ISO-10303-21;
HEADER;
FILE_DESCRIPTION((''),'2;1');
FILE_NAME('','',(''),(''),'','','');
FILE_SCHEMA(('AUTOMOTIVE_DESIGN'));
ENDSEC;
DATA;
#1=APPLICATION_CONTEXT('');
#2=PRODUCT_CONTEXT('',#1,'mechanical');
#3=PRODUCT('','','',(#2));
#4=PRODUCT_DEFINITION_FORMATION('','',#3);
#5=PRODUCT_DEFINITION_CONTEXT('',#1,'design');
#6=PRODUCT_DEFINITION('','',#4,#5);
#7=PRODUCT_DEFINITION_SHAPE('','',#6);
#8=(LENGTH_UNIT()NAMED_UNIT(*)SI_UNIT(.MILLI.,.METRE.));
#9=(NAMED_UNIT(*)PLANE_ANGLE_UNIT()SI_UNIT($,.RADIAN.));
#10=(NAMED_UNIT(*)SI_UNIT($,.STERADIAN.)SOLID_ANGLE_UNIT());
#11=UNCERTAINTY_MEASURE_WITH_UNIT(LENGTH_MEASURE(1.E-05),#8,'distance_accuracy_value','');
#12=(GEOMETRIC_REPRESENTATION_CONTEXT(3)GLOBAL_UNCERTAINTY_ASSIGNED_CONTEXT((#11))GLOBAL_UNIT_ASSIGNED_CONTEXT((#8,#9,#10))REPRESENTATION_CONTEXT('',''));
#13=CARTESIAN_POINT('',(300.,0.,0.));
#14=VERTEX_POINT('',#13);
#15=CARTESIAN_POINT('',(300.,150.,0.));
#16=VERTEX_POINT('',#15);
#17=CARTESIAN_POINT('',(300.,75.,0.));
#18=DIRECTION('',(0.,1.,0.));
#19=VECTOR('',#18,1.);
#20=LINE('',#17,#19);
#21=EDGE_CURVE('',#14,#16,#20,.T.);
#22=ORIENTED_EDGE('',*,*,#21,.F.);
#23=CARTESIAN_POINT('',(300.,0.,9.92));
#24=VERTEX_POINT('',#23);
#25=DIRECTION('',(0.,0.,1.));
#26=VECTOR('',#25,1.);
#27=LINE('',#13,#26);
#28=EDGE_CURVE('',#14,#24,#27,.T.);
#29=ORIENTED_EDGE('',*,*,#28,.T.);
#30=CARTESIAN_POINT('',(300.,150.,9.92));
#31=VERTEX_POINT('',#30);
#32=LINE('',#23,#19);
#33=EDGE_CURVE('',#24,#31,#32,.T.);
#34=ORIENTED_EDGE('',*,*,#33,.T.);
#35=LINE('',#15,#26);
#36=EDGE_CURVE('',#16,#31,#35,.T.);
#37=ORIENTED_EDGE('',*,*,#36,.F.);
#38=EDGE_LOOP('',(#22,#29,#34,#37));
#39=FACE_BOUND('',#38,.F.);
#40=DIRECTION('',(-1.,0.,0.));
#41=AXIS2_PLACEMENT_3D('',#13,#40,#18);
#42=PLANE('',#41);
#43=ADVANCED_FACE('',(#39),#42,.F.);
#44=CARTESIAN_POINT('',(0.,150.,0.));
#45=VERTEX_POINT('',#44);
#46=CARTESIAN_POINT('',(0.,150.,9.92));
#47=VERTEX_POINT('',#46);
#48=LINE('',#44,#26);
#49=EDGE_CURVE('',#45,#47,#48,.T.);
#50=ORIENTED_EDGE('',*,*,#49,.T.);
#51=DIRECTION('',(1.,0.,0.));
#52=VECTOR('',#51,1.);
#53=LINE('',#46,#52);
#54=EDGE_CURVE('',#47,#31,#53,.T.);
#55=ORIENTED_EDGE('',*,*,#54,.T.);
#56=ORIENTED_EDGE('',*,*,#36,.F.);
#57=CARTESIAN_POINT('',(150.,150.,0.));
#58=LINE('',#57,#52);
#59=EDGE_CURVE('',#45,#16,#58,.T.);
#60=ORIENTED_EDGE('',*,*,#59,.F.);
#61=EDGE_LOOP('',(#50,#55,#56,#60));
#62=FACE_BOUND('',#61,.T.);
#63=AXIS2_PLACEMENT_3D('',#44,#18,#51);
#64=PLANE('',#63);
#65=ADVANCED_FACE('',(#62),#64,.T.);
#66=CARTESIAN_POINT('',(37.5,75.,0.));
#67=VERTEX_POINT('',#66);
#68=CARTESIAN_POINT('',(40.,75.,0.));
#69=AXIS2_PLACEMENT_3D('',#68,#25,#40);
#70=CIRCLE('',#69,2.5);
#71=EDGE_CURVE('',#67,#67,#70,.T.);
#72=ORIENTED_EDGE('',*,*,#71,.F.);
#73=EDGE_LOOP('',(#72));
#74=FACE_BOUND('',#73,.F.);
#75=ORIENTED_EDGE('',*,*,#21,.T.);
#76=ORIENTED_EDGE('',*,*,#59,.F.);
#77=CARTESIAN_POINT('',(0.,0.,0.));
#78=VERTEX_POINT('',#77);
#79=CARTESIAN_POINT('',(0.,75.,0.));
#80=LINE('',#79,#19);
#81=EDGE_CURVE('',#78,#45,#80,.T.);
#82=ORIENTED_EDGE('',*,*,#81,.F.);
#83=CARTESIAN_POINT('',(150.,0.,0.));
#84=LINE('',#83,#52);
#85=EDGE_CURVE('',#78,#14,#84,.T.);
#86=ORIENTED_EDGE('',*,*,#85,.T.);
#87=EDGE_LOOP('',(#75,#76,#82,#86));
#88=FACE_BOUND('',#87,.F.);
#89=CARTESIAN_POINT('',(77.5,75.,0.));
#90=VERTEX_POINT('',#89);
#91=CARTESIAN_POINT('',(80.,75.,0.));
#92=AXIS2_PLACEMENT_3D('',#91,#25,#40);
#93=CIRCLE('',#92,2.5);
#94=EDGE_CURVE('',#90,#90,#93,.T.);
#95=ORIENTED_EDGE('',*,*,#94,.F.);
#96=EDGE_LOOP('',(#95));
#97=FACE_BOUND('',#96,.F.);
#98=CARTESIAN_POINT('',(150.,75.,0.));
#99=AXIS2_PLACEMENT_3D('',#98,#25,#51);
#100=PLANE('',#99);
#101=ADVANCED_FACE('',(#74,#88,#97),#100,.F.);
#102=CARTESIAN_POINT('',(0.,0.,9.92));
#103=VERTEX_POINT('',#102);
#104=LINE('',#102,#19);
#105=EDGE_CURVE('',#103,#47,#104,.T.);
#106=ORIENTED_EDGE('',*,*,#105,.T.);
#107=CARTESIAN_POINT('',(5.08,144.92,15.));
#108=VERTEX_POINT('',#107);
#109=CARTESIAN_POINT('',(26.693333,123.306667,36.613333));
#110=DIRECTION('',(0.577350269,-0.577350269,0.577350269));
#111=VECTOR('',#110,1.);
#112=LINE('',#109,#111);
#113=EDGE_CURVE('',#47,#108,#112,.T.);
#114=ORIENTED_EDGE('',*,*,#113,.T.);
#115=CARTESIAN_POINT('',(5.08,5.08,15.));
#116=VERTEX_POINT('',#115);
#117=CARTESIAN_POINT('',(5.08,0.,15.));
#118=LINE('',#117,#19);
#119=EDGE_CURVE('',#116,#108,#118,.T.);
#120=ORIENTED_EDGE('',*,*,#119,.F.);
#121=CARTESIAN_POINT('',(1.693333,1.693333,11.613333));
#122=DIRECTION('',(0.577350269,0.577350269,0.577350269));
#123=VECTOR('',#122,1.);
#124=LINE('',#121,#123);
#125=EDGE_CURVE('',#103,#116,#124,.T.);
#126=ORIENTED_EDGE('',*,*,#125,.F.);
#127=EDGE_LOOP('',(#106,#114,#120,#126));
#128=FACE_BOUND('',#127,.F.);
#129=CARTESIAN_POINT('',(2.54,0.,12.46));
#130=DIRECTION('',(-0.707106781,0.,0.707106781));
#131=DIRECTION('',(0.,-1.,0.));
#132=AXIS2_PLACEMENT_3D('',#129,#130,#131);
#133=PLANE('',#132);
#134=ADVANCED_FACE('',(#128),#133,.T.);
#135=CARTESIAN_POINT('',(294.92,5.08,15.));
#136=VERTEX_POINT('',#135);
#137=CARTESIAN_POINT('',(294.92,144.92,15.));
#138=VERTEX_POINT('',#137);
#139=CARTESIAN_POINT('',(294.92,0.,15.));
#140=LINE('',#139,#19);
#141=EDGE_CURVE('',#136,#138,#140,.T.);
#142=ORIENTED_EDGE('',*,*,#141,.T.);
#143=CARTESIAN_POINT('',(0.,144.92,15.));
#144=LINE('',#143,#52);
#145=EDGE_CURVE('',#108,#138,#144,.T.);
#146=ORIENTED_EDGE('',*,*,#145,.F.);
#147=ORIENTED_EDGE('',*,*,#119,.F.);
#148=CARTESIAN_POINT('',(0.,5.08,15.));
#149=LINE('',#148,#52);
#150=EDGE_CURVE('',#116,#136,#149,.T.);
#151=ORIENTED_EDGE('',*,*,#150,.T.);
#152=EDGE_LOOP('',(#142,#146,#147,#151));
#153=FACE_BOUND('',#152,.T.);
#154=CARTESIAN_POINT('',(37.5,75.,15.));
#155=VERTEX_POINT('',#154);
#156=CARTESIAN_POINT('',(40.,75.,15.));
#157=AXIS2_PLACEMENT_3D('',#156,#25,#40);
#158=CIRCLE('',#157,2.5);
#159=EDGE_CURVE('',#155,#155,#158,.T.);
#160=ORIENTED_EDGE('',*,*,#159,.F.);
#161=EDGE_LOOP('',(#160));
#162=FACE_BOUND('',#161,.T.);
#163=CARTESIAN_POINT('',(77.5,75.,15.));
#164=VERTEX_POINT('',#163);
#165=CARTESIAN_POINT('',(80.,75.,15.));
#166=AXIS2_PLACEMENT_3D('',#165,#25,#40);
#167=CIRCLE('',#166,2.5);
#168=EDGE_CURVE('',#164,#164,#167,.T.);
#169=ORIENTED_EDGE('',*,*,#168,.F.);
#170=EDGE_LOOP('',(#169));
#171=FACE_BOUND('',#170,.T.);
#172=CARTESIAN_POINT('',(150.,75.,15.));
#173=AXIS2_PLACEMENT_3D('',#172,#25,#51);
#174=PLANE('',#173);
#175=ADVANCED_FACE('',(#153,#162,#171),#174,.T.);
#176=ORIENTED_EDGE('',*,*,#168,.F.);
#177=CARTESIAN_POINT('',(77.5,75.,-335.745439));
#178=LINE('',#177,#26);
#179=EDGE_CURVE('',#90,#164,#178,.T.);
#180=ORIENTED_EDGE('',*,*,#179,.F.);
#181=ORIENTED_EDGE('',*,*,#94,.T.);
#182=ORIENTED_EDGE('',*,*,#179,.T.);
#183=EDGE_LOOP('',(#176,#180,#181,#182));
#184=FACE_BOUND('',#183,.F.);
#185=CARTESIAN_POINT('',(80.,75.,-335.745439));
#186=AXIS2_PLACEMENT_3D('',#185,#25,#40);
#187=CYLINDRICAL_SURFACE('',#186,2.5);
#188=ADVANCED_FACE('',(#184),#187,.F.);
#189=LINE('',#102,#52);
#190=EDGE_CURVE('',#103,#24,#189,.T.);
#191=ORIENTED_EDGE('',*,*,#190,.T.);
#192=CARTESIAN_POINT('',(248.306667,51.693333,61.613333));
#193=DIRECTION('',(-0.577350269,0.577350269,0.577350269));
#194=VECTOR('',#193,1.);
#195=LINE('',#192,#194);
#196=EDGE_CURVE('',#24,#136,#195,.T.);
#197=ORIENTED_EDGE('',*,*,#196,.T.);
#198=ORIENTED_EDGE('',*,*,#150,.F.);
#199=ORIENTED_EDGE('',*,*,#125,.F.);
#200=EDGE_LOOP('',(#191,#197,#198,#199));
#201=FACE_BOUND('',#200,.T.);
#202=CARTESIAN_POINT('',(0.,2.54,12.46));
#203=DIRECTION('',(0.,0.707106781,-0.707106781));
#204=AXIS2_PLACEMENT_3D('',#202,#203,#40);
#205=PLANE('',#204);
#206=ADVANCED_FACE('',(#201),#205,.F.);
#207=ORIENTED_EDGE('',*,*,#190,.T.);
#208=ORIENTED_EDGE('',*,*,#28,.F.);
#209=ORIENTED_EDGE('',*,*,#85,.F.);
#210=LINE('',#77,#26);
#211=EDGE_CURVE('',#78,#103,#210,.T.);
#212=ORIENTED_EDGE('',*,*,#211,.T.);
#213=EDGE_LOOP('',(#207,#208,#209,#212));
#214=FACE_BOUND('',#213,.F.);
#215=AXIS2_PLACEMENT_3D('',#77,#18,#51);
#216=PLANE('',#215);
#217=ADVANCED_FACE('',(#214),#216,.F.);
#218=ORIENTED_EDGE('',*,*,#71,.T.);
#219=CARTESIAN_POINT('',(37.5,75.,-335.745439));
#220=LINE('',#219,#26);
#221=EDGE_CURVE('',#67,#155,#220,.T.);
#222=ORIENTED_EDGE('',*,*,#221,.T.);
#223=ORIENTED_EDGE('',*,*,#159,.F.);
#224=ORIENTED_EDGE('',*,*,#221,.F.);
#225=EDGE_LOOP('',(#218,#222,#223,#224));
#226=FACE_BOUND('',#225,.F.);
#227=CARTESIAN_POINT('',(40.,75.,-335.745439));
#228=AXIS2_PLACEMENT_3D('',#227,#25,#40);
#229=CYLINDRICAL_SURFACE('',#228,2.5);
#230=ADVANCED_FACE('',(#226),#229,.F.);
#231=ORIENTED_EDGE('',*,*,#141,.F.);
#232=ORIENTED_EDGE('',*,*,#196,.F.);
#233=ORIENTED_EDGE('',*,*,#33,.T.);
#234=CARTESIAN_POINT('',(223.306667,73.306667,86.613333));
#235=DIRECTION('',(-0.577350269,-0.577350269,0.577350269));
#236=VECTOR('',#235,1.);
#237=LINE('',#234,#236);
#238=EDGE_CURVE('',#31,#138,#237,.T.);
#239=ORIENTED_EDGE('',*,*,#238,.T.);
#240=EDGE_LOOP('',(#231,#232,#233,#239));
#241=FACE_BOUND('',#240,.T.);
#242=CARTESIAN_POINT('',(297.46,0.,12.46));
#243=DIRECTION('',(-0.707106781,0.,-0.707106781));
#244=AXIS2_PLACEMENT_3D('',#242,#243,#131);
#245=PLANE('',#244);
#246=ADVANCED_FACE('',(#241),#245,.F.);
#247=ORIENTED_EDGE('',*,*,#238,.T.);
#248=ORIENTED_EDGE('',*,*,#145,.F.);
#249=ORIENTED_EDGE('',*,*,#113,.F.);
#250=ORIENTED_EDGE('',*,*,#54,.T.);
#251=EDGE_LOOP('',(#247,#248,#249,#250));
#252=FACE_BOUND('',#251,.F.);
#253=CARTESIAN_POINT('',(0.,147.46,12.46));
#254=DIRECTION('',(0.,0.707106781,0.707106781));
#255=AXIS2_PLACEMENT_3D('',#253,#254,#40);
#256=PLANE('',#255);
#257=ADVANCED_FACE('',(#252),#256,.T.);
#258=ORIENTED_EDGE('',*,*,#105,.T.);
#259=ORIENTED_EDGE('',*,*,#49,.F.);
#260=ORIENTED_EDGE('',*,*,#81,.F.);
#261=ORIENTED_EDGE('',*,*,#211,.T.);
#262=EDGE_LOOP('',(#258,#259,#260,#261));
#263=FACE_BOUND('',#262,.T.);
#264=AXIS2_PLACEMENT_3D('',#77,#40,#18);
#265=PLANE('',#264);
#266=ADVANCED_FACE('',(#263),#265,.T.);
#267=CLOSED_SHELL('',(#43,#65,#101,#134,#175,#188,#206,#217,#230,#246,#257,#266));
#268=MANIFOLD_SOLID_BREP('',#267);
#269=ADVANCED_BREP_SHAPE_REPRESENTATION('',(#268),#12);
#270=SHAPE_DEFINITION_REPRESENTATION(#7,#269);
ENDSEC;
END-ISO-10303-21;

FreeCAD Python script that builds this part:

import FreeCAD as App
import Part
import Sketcher

V = App.Vector
Q = App.Units.Quantity


def edges_at(feature, points):
    """Names of the edges that pass closest to the given points."""
    edges = feature.Shape.Edges
    near = lambda p: min(range(len(edges)), key=lambda i: edges[i].distToShape(Part.Vertex(*p))[0])
    return sorted({f"Edge{near(p) + 1}" for p in points})

doc = App.newDocument("Part")
params = doc.addObject("Spreadsheet::Sheet", "Params")
for row, (alias, value) in enumerate([
    ("sketch1_width", "300 mm"),
    ("sketch1_height", "150 mm"),
    ("pad1_length", "15 mm"),
    ("chamfer_size", "5.08 mm"),
    ("sketch2_diameter", "5 mm"),
    ("hole_diameter", "5 mm"),
], start=1):
    params.set(f"A{row}", alias)
    params.set(f"B{row}", "=" + value)
    params.setAlias(f"B{row}", alias)

body = doc.addObject("PartDesign::Body", "Body")

# Sketch on XY plane
sketch1 = doc.addObject("Sketcher::SketchObject", "Sketch")
body.addObject(sketch1)
sketch1.AttachmentSupport = (doc.XY_Plane, [""])
sketch1.MapMode = "FlatFace"
sketch1.addGeometry([
    Part.LineSegment(V(0, 150, 0), V(0, 0, 0)),
    Part.LineSegment(V(0, 0, 0), V(300, 0, 0)),
    Part.LineSegment(V(300, 0, 0), V(300, 150, 0)),
    Part.LineSegment(V(300, 150, 0), V(0, 150, 0)),
], False)
sketch1.addConstraint([
    Sketcher.Constraint("Coincident", 0, 2, 1, 1),
    Sketcher.Constraint("Coincident", 1, 2, 2, 1),
    Sketcher.Constraint("Coincident", 2, 2, 3, 1),
    Sketcher.Constraint("Coincident", 3, 2, 0, 1),
    Sketcher.Constraint("Vertical", 0),
    Sketcher.Constraint("Horizontal", 1),
    Sketcher.Constraint("Vertical", 2),
    Sketcher.Constraint("Horizontal", 3),
    Sketcher.Constraint("Coincident", 0, 2, -1, 1),
    Sketcher.Constraint("DistanceX", 1, 1, 1, 2, Q("300 mm")),
    Sketcher.Constraint("DistanceY", 0, 2, 0, 1, Q("150 mm")),
])
sketch1.setExpression("Constraints[9]", "Params.sketch1_width")
sketch1.setExpression("Constraints[10]", "Params.sketch1_height")
pad1 = doc.addObject("PartDesign::Pad", "Pad")
body.addObject(pad1)
pad1.Profile = sketch1
pad1.setExpression("Length", "Params.pad1_length")
doc.recompute()

chamfer = doc.addObject("PartDesign::Chamfer", "Chamfer")
body.addObject(chamfer)
chamfer.Base = (pad1, edges_at(pad1, [
    (150, 0, 15),
    (300, 75, 15),
    (150, 150, 15),
    (0, 75, 15),
]))
chamfer.setExpression("Size", "Params.chamfer_size")

# Sketch on XY plane
sketch2 = doc.addObject("Sketcher::SketchObject", "Sketch001")
body.addObject(sketch2)
sketch2.AttachmentSupport = (doc.XY_Plane, [""])
sketch2.MapMode = "FlatFace"
sketch2.addGeometry([
    Part.Circle(V(40, 75, 0), V(0, 0, 1), 2.5),
    Part.Circle(V(80, 75, 0), V(0, 0, 1), 2.5),
], False)
sketch2.addConstraint([
    Sketcher.Constraint("Equal", 0, 1),
    Sketcher.Constraint("Horizontal", 0, 3, 1, 3),
    Sketcher.Constraint("Diameter", 0, Q("5 mm")),
    Sketcher.Constraint("DistanceX", -1, 1, 0, 3, Q("40 mm")),
    Sketcher.Constraint("DistanceY", -1, 1, 0, 3, Q("75 mm")),
    Sketcher.Constraint("DistanceX", -1, 1, 1, 3, Q("80 mm")),
])
sketch2.setExpression("Constraints[2]", "Params.sketch2_diameter")
doc.recompute()
hole = doc.addObject("PartDesign::Hole", "Hole")
body.addObject(hole)
hole.Profile = sketch2
hole.ThreadType = "None"
hole.setExpression("Diameter", "Params.hole_diameter")
hole.DepthType = "ThroughAll"
hole.Reversed = True

doc.recompute()
